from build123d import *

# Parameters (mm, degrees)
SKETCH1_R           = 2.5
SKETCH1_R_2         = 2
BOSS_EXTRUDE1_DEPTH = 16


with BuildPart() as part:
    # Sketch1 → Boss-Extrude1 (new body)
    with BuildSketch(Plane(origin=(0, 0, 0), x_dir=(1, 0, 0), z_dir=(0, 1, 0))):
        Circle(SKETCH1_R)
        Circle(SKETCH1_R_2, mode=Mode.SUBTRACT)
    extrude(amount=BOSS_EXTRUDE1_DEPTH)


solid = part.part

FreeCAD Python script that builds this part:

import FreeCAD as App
import Part
import Sketcher
from FreeCAD import Vector

doc = App.newDocument("Part")
body = doc.addObject("PartDesign::Body", "Body")

sketch1 = body.newObject("Sketcher::SketchObject", "Sketch")
sketch1.AttachmentSupport = (doc.getObject("XZ_Plane"), [""])
sketch1.MapMode = "FlatFace"
sketch1.addGeometry(Part.Circle(Vector(0, 0, 0), Vector(0, 0, 1), 2.5), False)
sketch1.addGeometry(Part.Circle(Vector(0, 0, 0), Vector(0, 0, 1), 2), False)
sketch1.addConstraint(Sketcher.Constraint("Coincident", 0, 3, -1, 1))
sketch1.addConstraint(Sketcher.Constraint("Coincident", 1, 3, -1, 1))
sketch1.addConstraint(Sketcher.Constraint("Diameter", 0, 5.0))
sketch1.addConstraint(Sketcher.Constraint("Diameter", 1, 4.0))
pad1 = body.newObject("PartDesign::Pad", "Pad")
pad1.Profile = sketch1
pad1.Length = 16
pad1.Reversed = True

doc.recompute()
